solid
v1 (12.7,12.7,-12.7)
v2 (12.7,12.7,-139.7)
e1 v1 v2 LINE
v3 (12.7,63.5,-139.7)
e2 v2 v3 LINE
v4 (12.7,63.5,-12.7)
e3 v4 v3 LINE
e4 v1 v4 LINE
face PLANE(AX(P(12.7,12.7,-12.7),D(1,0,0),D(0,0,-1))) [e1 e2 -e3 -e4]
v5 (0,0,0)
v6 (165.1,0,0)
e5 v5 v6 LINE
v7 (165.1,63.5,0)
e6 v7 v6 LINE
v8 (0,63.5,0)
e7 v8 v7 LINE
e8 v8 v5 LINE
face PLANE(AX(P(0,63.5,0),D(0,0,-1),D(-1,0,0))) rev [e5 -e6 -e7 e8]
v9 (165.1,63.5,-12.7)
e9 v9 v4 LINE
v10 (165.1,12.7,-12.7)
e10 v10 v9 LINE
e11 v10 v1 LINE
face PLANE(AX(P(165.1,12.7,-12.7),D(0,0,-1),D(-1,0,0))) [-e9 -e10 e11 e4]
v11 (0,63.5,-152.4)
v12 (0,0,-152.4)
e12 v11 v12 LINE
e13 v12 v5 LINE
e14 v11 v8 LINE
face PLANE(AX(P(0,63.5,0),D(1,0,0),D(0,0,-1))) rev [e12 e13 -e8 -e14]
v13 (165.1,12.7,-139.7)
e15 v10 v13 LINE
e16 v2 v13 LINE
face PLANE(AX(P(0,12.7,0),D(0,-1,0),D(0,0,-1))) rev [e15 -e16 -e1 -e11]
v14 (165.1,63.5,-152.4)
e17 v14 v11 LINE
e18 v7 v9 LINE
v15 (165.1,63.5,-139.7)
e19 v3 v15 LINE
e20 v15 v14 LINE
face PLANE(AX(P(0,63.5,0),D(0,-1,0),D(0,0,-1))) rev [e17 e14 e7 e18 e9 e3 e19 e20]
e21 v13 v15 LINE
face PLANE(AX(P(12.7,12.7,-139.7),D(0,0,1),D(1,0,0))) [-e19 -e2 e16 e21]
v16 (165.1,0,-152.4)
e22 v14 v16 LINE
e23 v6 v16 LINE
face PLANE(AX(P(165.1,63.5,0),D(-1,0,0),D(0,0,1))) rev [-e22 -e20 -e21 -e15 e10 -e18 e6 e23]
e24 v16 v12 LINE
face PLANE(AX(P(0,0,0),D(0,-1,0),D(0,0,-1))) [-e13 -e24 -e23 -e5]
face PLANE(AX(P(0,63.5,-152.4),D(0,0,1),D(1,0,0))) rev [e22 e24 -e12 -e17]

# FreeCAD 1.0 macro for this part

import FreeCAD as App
import Part
import Sketcher
Q = App.Units.Quantity


def add_polygon(sketch, points):
    """Adds a closed chain of lines whose ends are joined by coincident constraints."""
    first, n = sketch.GeometryCount, len(points)
    for a, b in zip(points, points[1:] + points[:1]):
        sketch.addGeometry(Part.LineSegment(App.Vector(*a, 0), App.Vector(*b, 0)), False)
    for i in range(n):
        sketch.addConstraint(Sketcher.Constraint("Coincident", first + i, 2, first + (i + 1) % n, 1))

doc = App.newDocument("Part")
body = doc.addObject("PartDesign::Body", "Body")

sketch1 = doc.addObject("Sketcher::SketchObject", "Sketch")
body.addObject(sketch1)
sketch1.AttachmentSupport = (doc.XZ_Plane, [""])
sketch1.MapMode = "FlatFace"
add_polygon(sketch1, [(0, -152), (0, 0), (165, 0), (165, -152)])
sketch1.addConstraint([
    Sketcher.Constraint("Vertical", 0),
    Sketcher.Constraint("Horizontal", 1),
    Sketcher.Constraint("Vertical", 2),
    Sketcher.Constraint("Horizontal", 3),
    Sketcher.Constraint("Coincident", 0, 2, -1, 1),
    Sketcher.Constraint("DistanceY", 0, 1, 0, 2, Q("6 in")),
    Sketcher.Constraint("DistanceX", 1, 1, 1, 2, Q("6.5 in")),
])
pad1 = doc.addObject("PartDesign::Pad", "Pad")
body.addObject(pad1)
pad1.Profile = sketch1
pad1.Length = Q("2.5 in")
pad1.Reversed = True

sketch2 = doc.addObject("Sketcher::SketchObject", "Sketch001")
body.addObject(sketch2)
sketch2.AttachmentSupport = (doc.XZ_Plane, [""])
sketch2.MapMode = "FlatFace"
sketch2.AttachmentOffset = App.Placement(App.Vector(0, 0, -2.5 * 25.4), App.Rotation())
add_polygon(sketch2, [(13, -140), (13, -13), (165, -13), (165, -140)])
sketch2.addConstraint([
    Sketcher.Constraint("Vertical", 0),
    Sketcher.Constraint("Horizontal", 1),
    Sketcher.Constraint("Vertical", 2),
    Sketcher.Constraint("Horizontal", 3),
    Sketcher.Constraint("DistanceX", 1, 1, 1, 2, Q("6 in")),
    Sketcher.Constraint("DistanceY", 0, 1, 0, 2, Q("5 in")),
    Sketcher.Constraint("DistanceX", -1, 1, 0, 2, Q("0.5 in")),
    Sketcher.Constraint("DistanceY", 0, 2, -1, 1, Q("0.5 in")),
])
pocket1 = doc.addObject("PartDesign::Pocket", "Pocket")
body.addObject(pocket1)
pocket1.Profile = sketch2
pocket1.Length = Q("2 in")
pocket1.Reversed = True

doc.recompute()
